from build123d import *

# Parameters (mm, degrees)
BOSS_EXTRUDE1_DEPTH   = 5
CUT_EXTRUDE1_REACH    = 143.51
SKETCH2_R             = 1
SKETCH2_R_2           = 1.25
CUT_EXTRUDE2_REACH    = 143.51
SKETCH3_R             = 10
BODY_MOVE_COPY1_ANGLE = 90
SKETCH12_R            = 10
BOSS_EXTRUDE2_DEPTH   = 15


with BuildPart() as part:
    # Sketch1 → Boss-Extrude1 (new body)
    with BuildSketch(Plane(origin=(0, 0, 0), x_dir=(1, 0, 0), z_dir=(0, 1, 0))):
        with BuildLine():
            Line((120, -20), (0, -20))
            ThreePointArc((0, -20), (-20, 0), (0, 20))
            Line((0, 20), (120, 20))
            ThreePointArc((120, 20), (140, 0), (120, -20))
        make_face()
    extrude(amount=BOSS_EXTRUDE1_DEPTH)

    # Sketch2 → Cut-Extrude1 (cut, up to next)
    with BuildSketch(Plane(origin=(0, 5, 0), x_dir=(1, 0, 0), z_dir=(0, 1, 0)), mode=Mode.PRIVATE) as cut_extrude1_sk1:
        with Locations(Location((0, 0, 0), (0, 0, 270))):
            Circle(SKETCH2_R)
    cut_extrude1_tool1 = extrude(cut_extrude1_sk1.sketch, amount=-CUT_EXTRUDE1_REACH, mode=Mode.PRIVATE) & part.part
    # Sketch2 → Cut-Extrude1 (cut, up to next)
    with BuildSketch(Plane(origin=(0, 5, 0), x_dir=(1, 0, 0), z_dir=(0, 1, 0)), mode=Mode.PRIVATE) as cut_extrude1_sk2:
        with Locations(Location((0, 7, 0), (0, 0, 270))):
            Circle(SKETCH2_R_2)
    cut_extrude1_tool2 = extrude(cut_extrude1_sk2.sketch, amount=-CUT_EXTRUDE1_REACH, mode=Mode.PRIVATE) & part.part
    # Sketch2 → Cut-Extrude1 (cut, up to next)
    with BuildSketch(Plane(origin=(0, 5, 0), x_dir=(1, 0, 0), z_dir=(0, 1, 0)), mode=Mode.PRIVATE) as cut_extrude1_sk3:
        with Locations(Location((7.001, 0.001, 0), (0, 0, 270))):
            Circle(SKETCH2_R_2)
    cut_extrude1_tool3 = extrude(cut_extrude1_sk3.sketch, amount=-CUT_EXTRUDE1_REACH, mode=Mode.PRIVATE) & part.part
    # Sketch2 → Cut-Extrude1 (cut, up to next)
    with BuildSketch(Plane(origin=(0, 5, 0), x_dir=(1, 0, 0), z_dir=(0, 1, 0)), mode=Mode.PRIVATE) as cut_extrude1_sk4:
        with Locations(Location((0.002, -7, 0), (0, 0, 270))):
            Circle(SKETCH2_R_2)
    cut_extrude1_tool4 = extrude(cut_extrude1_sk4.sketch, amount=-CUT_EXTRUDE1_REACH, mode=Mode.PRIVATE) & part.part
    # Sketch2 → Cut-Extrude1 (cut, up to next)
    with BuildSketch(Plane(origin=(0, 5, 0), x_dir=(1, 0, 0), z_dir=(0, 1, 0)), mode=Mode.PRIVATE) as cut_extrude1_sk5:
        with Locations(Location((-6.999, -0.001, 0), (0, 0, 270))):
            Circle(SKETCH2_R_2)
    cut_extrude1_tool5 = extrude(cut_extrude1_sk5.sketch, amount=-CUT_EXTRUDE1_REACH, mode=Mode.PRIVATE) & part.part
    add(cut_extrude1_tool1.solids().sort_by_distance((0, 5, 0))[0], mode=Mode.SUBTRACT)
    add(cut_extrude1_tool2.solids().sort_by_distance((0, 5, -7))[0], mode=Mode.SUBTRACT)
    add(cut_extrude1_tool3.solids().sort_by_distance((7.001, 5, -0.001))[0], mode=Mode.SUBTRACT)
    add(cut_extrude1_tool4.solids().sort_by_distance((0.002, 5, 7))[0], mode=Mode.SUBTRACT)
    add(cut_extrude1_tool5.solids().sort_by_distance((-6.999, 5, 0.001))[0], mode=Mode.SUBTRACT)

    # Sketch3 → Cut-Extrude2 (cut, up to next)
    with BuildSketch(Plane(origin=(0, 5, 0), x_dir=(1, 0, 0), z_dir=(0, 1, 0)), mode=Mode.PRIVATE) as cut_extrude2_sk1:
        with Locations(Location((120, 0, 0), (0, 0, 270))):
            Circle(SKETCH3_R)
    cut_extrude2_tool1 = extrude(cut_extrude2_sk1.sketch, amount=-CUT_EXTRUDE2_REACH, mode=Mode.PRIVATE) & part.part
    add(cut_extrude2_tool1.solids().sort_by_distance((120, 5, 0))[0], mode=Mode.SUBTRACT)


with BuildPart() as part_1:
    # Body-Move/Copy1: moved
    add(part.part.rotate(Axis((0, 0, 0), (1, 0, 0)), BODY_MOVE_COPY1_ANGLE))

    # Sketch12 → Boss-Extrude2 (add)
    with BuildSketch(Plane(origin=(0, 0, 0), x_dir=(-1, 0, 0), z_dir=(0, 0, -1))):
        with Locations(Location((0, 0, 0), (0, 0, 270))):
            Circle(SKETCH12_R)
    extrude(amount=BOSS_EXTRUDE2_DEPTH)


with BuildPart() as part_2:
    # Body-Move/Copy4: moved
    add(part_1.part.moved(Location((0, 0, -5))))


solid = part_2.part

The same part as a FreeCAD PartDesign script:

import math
import FreeCAD as App
import Part
import Sketcher
Q = App.Units.Quantity

doc = App.newDocument("Part")
body = doc.addObject("PartDesign::Body", "Body")

sketch1 = body.newObject("Sketcher::SketchObject", "Sketch")
sketch1.AttachmentSupport = (doc.getObject("XZ_Plane"), [""])
sketch1.MapMode = "FlatFace"
sketch1.addGeometry([
    Part.LineSegment(App.Vector(0, 20, 0), App.Vector(120, 20, 0)),
    Part.ArcOfCircle(Part.Circle(App.Vector(120, 0, 0), App.Vector(0, 0, 1), 20), math.radians(-90), math.radians(90)),
    Part.LineSegment(App.Vector(120, -20, 0), App.Vector(0, -20, 0)),
    Part.ArcOfCircle(Part.Circle(App.Vector(0, 0, 0), App.Vector(0, 0, 1), 20), math.radians(90), math.radians(270)),
], False)
sketch1.addConstraint([
    Sketcher.Constraint("Tangent", 0, 2, 1, 2),
    Sketcher.Constraint("Tangent", 1, 1, 2, 1),
    Sketcher.Constraint("Tangent", 2, 2, 3, 2),
    Sketcher.Constraint("Tangent", 3, 1, 0, 1),
    Sketcher.Constraint("Horizontal", 0),
    Sketcher.Constraint("Horizontal", 2),
    Sketcher.Constraint("Coincident", 3, 3, -1, 1),
    Sketcher.Constraint("Radius", 1, Q("20 mm")),
    Sketcher.Constraint("DistanceX", 0, 1, 0, 2, Q("120 mm")),
])
pad1 = body.newObject("PartDesign::Pad", "Pad")
pad1.Profile = sketch1
pad1.Length = 5
pad1.Reversed = True

sketch2 = body.newObject("Sketcher::SketchObject", "Sketch001")
sketch2.AttachmentSupport = (doc.getObject("XZ_Plane"), [""])
sketch2.MapMode = "FlatFace"
sketch2.AttachmentOffset = App.Placement(App.Vector(0, 0, -5), App.Rotation())
sketch2.addGeometry(Part.Circle(App.Vector(0, 0, 0), App.Vector(0, 0, 1), 1), False)
sketch2.addConstraint([
    Sketcher.Constraint("Coincident", 0, 3, -1, 1),
    Sketcher.Constraint("Diameter", 0, Q("2 mm")),
])
pocket1 = body.newObject("PartDesign::Pocket", "Pocket")
pocket1.Profile = sketch2
pocket1.Type = "UpToFirst"
pocket1.Reversed = True

sketch3 = body.newObject("Sketcher::SketchObject", "Sketch002")
sketch3.AttachmentSupport = (doc.getObject("XZ_Plane"), [""])
sketch3.MapMode = "FlatFace"
sketch3.AttachmentOffset = App.Placement(App.Vector(0, 0, -5), App.Rotation())
sketch3.addGeometry(Part.Circle(App.Vector(0, -7, 0), App.Vector(0, 0, 1), 1.2), False)
sketch3.addConstraint([
    Sketcher.Constraint("PointOnObject", 0, 3, -2),
    Sketcher.Constraint("Diameter", 0, Q("2.5 mm")),
    Sketcher.Constraint("DistanceY", 0, 3, -1, 1, Q("7 mm")),
])
pocket2 = body.newObject("PartDesign::Pocket", "Pocket001")
pocket2.Profile = sketch3
pocket2.Type = "UpToFirst"
pocket2.Reversed = True

sketch4 = body.newObject("Sketcher::SketchObject", "Sketch003")
sketch4.AttachmentSupport = (doc.getObject("XZ_Plane"), [""])
sketch4.MapMode = "FlatFace"
sketch4.AttachmentOffset = App.Placement(App.Vector(0, 0, -5), App.Rotation())
sketch4.addGeometry(Part.Circle(App.Vector(7, 0, 0), App.Vector(0, 0, 1), 1.2), False)
sketch4.addConstraint([
    Sketcher.Constraint("Diameter", 0, Q("2.5 mm")),
    Sketcher.Constraint("DistanceX", -1, 1, 0, 3, Q("7.001 mm")),
    Sketcher.Constraint("DistanceY", 0, 3, -1, 1, Q("0.001 mm")),
])
pocket3 = body.newObject("PartDesign::Pocket", "Pocket002")
pocket3.Profile = sketch4
pocket3.Type = "UpToFirst"
pocket3.Reversed = True

sketch5 = body.newObject("Sketcher::SketchObject", "Sketch004")
sketch5.AttachmentSupport = (doc.getObject("XZ_Plane"), [""])
sketch5.MapMode = "FlatFace"
sketch5.AttachmentOffset = App.Placement(App.Vector(0, 0, -5), App.Rotation())
sketch5.addGeometry(Part.Circle(App.Vector(0, 7, 0), App.Vector(0, 0, 1), 1.2), False)
sketch5.addConstraint([
    Sketcher.Constraint("Diameter", 0, Q("2.5 mm")),
    Sketcher.Constraint("DistanceY", -1, 1, 0, 3, Q("7 mm")),
    Sketcher.Constraint("DistanceX", -1, 1, 0, 3, Q("0.002 mm")),
])
pocket4 = body.newObject("PartDesign::Pocket", "Pocket003")
pocket4.Profile = sketch5
pocket4.Type = "UpToFirst"
pocket4.Reversed = True

sketch6 = body.newObject("Sketcher::SketchObject", "Sketch005")
sketch6.AttachmentSupport = (doc.getObject("XZ_Plane"), [""])
sketch6.MapMode = "FlatFace"
sketch6.AttachmentOffset = App.Placement(App.Vector(0, 0, -5), App.Rotation())
sketch6.addGeometry(Part.Circle(App.Vector(-7, 0, 0), App.Vector(0, 0, 1), 1.2), False)
sketch6.addConstraint([
    Sketcher.Constraint("Diameter", 0, Q("2.5 mm")),
    Sketcher.Constraint("DistanceX", 0, 3, -1, 1, Q("6.999 mm")),
    Sketcher.Constraint("DistanceY", -1, 1, 0, 3, Q("0.001 mm")),
])
pocket5 = body.newObject("PartDesign::Pocket", "Pocket004")
pocket5.Profile = sketch6
pocket5.Type = "UpToFirst"
pocket5.Reversed = True

sketch7 = body.newObject("Sketcher::SketchObject", "Sketch006")
sketch7.AttachmentSupport = (doc.getObject("XZ_Plane"), [""])
sketch7.MapMode = "FlatFace"
sketch7.AttachmentOffset = App.Placement(App.Vector(0, 0, -5), App.Rotation())
sketch7.addGeometry(Part.Circle(App.Vector(120, 0, 0), App.Vector(0, 0, 1), 10), False)
sketch7.addConstraint([
    Sketcher.Constraint("PointOnObject", 0, 3, -1),
    Sketcher.Constraint("Diameter", 0, Q("20 mm")),
    Sketcher.Constraint("DistanceX", -1, 1, 0, 3, Q("120 mm")),
])
pocket6 = body.newObject("PartDesign::Pocket", "Pocket005")
pocket6.Profile = sketch7
pocket6.Type = "UpToFirst"
pocket6.Reversed = True
body2 = doc.addObject("PartDesign::Body", "Body001")
doc.recompute()

body.Placement = App.Placement(App.Vector(0, 0, 0), App.Rotation(App.Vector(1, 0, 0), 90))
boolean = body2.newObject("PartDesign::Boolean", "Boolean")
boolean.Type = "Fuse"
boolean.addObjects([body])

sketch8 = body2.newObject("Sketcher::SketchObject", "Sketch007")
sketch8.AttachmentSupport = (doc.getObject("XY_Plane001"), [""])
sketch8.MapMode = "FlatFace"
sketch8.addGeometry(Part.Circle(App.Vector(0, 0, 0), App.Vector(0, 0, 1), 10), False)
sketch8.addConstraint([
    Sketcher.Constraint("Coincident", 0, 3, -1, 1),
    Sketcher.Constraint("Diameter", 0, Q("20 mm")),
])
pad2 = body2.newObject("PartDesign::Pad", "Pad001")
pad2.Profile = sketch8
pad2.Length = 15
pad2.Reversed = True
body3 = doc.addObject("PartDesign::Body", "Body002")
doc.recompute()

body2.Placement = App.Placement(App.Vector(0, 0, -5), App.Rotation(App.Vector(0, 0, 1), 0))
boolean2 = body3.newObject("PartDesign::Boolean", "Boolean001")
boolean2.Type = "Fuse"
boolean2.addObjects([body2])

doc.recompute()
